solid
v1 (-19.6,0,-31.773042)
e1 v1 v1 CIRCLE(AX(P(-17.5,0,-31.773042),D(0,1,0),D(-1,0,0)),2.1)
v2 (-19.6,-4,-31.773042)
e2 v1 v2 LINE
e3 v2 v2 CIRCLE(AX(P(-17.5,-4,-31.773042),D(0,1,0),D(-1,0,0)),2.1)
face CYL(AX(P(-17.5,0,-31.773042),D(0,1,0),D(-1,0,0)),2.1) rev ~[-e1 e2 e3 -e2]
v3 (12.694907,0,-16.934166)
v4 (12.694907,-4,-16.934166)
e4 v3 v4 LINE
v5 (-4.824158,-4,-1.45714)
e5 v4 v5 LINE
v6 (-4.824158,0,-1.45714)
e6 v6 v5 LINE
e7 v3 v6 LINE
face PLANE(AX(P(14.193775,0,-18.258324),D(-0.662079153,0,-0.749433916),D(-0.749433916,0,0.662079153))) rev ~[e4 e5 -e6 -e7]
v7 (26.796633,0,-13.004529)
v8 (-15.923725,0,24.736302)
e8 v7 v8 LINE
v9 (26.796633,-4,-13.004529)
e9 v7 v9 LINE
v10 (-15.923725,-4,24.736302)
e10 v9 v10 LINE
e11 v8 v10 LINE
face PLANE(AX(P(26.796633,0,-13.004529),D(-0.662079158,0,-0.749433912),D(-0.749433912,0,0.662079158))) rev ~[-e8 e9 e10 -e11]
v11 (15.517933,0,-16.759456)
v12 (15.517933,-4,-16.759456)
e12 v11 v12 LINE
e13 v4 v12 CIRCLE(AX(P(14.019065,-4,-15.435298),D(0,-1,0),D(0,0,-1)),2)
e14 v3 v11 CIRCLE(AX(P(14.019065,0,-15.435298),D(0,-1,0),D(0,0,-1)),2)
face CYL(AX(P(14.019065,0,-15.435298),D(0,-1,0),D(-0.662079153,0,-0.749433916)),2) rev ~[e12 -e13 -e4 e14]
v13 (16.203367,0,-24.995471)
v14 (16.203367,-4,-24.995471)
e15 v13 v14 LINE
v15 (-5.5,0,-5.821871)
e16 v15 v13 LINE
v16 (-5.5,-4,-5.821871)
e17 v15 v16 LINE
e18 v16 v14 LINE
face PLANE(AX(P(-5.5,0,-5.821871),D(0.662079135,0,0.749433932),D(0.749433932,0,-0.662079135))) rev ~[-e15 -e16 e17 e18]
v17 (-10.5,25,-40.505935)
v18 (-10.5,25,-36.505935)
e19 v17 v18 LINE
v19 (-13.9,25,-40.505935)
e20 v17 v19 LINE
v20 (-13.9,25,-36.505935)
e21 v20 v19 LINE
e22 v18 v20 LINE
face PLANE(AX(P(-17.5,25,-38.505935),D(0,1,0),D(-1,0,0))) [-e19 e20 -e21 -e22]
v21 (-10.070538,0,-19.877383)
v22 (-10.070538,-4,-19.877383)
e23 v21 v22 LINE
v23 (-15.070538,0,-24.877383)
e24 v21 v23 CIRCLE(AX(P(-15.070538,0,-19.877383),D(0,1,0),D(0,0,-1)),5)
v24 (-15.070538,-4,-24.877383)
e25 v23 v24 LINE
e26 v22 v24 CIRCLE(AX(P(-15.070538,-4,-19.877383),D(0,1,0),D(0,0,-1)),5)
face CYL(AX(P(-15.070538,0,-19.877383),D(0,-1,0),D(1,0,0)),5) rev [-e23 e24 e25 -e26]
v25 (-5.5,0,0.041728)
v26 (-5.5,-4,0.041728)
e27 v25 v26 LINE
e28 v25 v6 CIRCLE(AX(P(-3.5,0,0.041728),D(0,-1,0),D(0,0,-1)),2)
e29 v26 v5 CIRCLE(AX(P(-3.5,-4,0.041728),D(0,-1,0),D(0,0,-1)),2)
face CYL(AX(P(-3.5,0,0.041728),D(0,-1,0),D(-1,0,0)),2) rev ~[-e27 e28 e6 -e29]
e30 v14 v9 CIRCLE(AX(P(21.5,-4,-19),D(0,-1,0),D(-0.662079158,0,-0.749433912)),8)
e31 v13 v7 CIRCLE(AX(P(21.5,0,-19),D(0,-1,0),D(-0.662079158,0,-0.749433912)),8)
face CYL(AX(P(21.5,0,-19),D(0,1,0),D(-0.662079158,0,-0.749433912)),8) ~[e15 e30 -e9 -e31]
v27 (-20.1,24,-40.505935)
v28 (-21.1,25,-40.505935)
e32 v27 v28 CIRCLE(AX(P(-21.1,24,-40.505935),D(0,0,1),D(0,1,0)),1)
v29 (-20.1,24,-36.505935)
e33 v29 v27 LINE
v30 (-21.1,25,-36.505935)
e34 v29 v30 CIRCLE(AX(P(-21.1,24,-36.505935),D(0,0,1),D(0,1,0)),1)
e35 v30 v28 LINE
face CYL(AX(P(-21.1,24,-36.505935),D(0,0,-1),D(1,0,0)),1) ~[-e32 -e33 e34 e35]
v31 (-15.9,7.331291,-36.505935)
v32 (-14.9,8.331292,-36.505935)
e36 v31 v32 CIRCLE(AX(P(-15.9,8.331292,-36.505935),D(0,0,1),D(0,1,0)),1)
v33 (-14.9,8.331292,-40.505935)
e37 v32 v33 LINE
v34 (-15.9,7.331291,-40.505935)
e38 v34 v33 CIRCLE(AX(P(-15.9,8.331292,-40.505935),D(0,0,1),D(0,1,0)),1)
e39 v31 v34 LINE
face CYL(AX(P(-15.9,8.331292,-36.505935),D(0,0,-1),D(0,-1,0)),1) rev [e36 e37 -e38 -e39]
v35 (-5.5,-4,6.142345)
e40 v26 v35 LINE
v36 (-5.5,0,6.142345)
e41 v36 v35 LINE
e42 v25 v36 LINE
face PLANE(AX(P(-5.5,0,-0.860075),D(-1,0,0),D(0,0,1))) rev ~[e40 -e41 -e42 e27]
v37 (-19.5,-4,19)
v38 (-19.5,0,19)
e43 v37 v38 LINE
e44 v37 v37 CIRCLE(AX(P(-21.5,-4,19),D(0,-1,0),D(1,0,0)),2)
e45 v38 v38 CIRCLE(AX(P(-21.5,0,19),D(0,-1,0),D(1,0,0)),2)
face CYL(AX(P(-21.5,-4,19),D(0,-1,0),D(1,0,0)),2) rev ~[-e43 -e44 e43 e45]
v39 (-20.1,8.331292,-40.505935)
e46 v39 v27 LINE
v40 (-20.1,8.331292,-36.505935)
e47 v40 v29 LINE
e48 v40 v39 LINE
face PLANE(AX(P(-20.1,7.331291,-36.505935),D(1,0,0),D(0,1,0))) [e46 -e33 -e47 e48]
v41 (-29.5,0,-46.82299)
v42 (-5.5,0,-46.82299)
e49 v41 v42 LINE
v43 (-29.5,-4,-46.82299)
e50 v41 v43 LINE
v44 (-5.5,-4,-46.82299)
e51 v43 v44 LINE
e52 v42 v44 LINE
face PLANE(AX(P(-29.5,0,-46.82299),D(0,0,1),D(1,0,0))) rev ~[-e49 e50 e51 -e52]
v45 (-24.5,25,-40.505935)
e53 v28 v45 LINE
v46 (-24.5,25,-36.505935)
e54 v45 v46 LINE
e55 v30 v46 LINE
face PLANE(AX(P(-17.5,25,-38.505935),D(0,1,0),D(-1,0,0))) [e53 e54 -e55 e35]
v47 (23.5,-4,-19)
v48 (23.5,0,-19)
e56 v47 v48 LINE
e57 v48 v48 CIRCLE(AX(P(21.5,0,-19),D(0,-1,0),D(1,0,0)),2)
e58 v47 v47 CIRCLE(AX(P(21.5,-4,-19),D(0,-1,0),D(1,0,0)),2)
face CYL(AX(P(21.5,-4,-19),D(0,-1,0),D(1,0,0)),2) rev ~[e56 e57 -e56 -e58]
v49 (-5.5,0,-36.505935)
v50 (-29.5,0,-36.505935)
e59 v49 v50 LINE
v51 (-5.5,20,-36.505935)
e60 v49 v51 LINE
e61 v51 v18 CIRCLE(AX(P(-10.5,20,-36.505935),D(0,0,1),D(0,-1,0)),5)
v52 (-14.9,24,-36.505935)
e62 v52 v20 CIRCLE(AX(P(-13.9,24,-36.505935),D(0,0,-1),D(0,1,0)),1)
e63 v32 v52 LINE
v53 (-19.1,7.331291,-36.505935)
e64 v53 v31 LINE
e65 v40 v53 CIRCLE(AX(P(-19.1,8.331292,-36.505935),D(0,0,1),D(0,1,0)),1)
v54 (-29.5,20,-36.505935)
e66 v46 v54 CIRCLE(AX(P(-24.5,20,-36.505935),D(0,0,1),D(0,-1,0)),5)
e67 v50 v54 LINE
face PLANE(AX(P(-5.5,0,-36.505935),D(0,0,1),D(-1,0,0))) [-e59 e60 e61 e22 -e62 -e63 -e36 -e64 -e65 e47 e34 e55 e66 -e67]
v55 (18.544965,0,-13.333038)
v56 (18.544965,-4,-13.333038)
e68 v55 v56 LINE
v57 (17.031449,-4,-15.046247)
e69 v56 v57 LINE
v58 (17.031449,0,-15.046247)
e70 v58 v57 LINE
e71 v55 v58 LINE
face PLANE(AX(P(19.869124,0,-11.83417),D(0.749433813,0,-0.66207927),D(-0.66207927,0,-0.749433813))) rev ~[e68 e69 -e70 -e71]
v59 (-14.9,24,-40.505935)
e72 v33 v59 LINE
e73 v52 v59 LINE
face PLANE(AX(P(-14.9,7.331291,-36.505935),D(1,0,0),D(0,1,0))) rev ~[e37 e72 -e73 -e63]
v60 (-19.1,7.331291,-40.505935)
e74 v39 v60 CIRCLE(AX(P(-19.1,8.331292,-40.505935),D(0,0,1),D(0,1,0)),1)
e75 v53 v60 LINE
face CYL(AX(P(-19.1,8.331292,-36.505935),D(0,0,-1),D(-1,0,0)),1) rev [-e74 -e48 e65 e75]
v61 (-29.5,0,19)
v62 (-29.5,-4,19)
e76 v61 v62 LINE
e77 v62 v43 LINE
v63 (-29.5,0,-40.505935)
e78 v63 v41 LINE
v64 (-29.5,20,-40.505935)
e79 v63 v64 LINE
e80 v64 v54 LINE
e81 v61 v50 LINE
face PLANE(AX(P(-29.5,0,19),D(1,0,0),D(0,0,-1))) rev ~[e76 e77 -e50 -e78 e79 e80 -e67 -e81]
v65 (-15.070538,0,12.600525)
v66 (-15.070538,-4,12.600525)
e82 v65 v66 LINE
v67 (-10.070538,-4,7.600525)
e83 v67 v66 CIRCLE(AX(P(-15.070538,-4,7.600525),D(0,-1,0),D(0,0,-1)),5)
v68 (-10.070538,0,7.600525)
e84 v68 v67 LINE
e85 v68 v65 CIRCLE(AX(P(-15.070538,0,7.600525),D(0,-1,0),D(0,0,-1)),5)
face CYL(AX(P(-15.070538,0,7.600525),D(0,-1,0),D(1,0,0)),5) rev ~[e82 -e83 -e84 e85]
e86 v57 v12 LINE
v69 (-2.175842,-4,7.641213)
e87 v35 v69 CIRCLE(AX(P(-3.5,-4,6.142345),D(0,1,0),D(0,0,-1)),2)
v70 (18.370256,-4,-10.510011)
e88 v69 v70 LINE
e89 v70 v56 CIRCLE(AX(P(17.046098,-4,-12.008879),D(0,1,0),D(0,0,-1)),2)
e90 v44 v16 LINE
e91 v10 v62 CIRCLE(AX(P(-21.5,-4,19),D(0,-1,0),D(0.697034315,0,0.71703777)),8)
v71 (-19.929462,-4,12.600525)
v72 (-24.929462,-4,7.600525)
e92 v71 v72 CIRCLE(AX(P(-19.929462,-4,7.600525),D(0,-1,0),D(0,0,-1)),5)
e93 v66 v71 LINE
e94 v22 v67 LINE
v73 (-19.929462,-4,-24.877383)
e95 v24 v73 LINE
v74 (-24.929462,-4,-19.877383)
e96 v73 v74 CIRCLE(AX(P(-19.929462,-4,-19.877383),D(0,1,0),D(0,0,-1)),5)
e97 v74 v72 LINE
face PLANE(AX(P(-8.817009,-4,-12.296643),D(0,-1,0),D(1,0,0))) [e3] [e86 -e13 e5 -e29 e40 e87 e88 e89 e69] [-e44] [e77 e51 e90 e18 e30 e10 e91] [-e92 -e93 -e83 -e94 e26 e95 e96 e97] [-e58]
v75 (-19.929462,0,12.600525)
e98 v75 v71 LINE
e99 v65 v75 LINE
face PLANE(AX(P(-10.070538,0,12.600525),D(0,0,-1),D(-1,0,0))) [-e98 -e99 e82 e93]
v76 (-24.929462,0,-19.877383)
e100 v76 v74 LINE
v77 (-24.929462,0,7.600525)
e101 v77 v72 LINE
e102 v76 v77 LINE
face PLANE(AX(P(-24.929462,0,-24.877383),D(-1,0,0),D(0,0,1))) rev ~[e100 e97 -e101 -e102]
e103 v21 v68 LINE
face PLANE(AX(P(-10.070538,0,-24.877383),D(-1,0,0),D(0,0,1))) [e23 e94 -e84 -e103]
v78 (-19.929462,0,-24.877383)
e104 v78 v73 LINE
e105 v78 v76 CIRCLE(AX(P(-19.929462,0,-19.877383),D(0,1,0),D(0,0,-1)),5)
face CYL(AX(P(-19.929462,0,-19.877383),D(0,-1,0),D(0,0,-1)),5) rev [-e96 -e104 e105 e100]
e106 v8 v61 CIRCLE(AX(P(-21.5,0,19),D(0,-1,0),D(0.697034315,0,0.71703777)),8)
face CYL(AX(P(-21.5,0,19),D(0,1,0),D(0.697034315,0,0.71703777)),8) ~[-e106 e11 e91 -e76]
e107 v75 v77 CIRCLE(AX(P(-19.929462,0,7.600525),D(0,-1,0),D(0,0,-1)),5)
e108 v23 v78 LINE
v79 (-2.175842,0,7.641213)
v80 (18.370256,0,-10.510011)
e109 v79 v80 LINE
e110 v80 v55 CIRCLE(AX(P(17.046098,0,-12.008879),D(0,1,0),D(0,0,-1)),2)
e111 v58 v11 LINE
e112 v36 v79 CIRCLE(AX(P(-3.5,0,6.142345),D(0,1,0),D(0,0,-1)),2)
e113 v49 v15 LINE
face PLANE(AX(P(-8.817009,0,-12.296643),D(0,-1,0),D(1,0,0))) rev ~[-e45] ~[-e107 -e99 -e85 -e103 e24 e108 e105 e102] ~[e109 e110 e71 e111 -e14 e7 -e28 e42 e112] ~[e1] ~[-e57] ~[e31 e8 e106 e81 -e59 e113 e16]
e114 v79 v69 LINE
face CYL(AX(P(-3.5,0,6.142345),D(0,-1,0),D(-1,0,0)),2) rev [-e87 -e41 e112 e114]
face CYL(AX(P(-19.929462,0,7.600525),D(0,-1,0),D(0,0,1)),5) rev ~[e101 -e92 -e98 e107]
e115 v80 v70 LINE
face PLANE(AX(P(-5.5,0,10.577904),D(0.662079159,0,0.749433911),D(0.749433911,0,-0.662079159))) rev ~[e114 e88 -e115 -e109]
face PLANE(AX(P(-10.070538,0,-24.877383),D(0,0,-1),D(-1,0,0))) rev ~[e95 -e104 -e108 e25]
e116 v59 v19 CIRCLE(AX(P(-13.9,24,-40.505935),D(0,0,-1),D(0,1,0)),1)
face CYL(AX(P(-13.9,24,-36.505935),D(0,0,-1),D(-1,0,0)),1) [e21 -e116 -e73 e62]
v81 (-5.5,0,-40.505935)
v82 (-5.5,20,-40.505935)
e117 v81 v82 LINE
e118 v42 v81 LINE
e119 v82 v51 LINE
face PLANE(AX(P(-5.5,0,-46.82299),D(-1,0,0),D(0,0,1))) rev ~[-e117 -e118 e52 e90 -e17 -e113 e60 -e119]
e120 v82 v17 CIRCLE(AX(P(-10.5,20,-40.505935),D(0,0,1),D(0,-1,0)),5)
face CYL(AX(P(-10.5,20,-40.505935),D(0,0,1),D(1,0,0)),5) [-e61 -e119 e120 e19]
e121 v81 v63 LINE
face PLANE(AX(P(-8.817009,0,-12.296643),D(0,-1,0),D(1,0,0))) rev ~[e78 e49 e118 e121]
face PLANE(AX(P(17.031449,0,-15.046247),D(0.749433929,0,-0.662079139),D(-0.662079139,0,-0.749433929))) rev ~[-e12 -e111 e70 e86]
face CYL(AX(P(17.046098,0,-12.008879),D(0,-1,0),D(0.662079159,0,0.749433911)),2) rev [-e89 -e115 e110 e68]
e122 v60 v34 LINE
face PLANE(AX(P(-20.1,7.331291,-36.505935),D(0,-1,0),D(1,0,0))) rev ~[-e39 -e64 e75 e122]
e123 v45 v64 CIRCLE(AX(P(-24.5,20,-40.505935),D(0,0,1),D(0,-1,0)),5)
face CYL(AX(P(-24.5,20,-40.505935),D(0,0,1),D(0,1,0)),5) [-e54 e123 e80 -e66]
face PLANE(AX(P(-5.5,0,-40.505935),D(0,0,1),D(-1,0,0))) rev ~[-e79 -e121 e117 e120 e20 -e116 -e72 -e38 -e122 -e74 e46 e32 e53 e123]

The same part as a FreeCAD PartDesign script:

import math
import FreeCAD as App
import Part
import Sketcher


def edges_at(feature, points):
    """Names of the edges that pass closest to the given points."""
    edges = feature.Shape.Edges
    near = lambda p: min(range(len(edges)), key=lambda i: edges[i].distToShape(Part.Vertex(*p))[0])
    return sorted({f"Edge{near(p) + 1}" for p in points})

doc = App.newDocument("Part")
body = doc.addObject("PartDesign::Body", "Body")

sketch1 = body.newObject("Sketcher::SketchObject", "Sketch")
sketch1.AttachmentSupport = (doc.getObject("XZ_Plane"), [""])
sketch1.MapMode = "FlatFace"
sketch1.addGeometry([
    Part.LineSegment(App.Vector(27, -13, 0), App.Vector(-16, 25, 0)),
    Part.ArcOfCircle(Part.Circle(App.Vector(-21, 19, 0), App.Vector(0, 0, 1), 8), math.radians(46), math.radians(180)),
    Part.LineSegment(App.Vector(-30, 19, 0), App.Vector(-30, -47, 0)),
    Part.LineSegment(App.Vector(-30, -47, 0), App.Vector(-6, -47, 0)),
    Part.LineSegment(App.Vector(-6, -47, 0), App.Vector(-6, -6, 0)),
    Part.LineSegment(App.Vector(-6, -6, 0), App.Vector(16, -25, 0)),
    Part.ArcOfCircle(Part.Circle(App.Vector(22, -19, 0), App.Vector(0, 0, 1), 8), math.radians(-131), math.radians(49)),
], False)
sketch1.addConstraint([
    Sketcher.Constraint("Coincident", 0, 2, 1, 1),
    Sketcher.Constraint("Tangent", 1, 2, 2, 1),
    Sketcher.Constraint("Coincident", 2, 2, 3, 1),
    Sketcher.Constraint("Coincident", 3, 2, 4, 1),
    Sketcher.Constraint("Coincident", 4, 2, 5, 1),
    Sketcher.Constraint("Tangent", 5, 2, 6, 1),
    Sketcher.Constraint("Tangent", 6, 2, 0, 1),
    Sketcher.Constraint("Vertical", 2),
    Sketcher.Constraint("Horizontal", 3),
    Sketcher.Constraint("Vertical", 4),
    Sketcher.Constraint("Equal", 1, 6),
    Sketcher.Constraint("Symmetric", 1, 3, 6, 3, -1, 1),
    Sketcher.Constraint("Parallel", 0, 5),
    Sketcher.Constraint("Radius", 1, 8.0),
    Sketcher.Constraint("DistanceX", 3, 1, 3, 2, 24.0),
    Sketcher.Constraint("DistanceY", -1, 1, 1, 3, 19.0),
    Sketcher.Constraint("DistanceX", 1, 3, 6, 3, 43.0),
    Sketcher.Constraint("DistanceY", 2, 2, 2, 1, 65.82299),
    Sketcher.Constraint("DistanceY", 4, 1, 4, 2, 41.001119),
])
pad1 = body.newObject("PartDesign::Pad", "Pad")
pad1.Profile = sketch1
pad1.Length = 4

sketch2 = body.newObject("Sketcher::SketchObject", "Sketch001")
sketch2.AttachmentSupport = (doc.getObject("XZ_Plane"), [""])
sketch2.MapMode = "FlatFace"
sketch2.AttachmentOffset = App.Placement(App.Vector(0, 0, 4), App.Rotation())
sketch2.addGeometry([
    Part.Circle(App.Vector(-21.5, 19, 0), App.Vector(0, 0, 1), 2),
    Part.Circle(App.Vector(21.5, -19, 0), App.Vector(0, 0, 1), 2),
], False)
sketch2.addConstraint([
    Sketcher.Constraint("Equal", 0, 1),
    Sketcher.Constraint("Symmetric", 0, 3, 1, 3, -1, 1),
    Sketcher.Constraint("Diameter", 0, 4.0),
    Sketcher.Constraint("DistanceY", -1, 1, 0, 3, 19.0),
    Sketcher.Constraint("DistanceX", 0, 3, 1, 3, 43.0),
])
pocket1 = body.newObject("PartDesign::Pocket", "Pocket")
pocket1.Profile = sketch2
pocket1.Length = 25

sketch3 = body.newObject("Sketcher::SketchObject", "Sketch002")
sketch3.AttachmentSupport = (doc.getObject("XZ_Plane"), [""])
sketch3.MapMode = "FlatFace"
sketch3.addGeometry([
    Part.LineSegment(App.Vector(-5.5, -36.5, 0), App.Vector(-5.5, -40.5, 0)),
    Part.LineSegment(App.Vector(-5.5, -40.5, 0), App.Vector(-29.5, -40.5, 0)),
    Part.LineSegment(App.Vector(-29.5, -40.5, 0), App.Vector(-29.5, -36.5, 0)),
    Part.LineSegment(App.Vector(-29.5, -36.5, 0), App.Vector(-5.5, -36.5, 0)),
], False)
sketch3.addConstraint([
    Sketcher.Constraint("Coincident", 0, 2, 1, 1),
    Sketcher.Constraint("Coincident", 1, 2, 2, 1),
    Sketcher.Constraint("Coincident", 2, 2, 3, 1),
    Sketcher.Constraint("Coincident", 3, 2, 0, 1),
    Sketcher.Constraint("Vertical", 0),
    Sketcher.Constraint("Horizontal", 1),
    Sketcher.Constraint("Vertical", 2),
    Sketcher.Constraint("Horizontal", 3),
    Sketcher.Constraint("DistanceX", 1, 2, 1, 1, 24.0),
    Sketcher.Constraint("DistanceY", 0, 2, 0, 1, 4.0),
    Sketcher.Constraint("DistanceX", 0, 2, -1, 1, 5.5),
    Sketcher.Constraint("DistanceY", 0, 2, -1, 1, 40.505935),
])
pad2 = body.newObject("PartDesign::Pad", "Pad001")
pad2.Profile = sketch3
pad2.Length = 25
pad2.Reversed = True

sketch4 = body.newObject("Sketcher::SketchObject", "Sketch003")
sketch4.AttachmentSupport = (doc.getObject("XY_Plane"), [""])
sketch4.MapMode = "FlatFace"
sketch4.AttachmentOffset = App.Placement(App.Vector(0, 0, -36.505935), App.Rotation())
sketch4.addGeometry([
    Part.LineSegment(App.Vector(-20, 25, 0), App.Vector(-20, 7, 0)),
    Part.LineSegment(App.Vector(-20, 7, 0), App.Vector(-15, 7, 0)),
    Part.LineSegment(App.Vector(-15, 7, 0), App.Vector(-15, 25, 0)),
    Part.LineSegment(App.Vector(-15, 25, 0), App.Vector(-20, 25, 0)),
], False)
sketch4.addConstraint([
    Sketcher.Constraint("Coincident", 0, 2, 1, 1),
    Sketcher.Constraint("Coincident", 1, 2, 2, 1),
    Sketcher.Constraint("Coincident", 2, 2, 3, 1),
    Sketcher.Constraint("Coincident", 3, 2, 0, 1),
    Sketcher.Constraint("Vertical", 0),
    Sketcher.Constraint("Horizontal", 1),
    Sketcher.Constraint("Vertical", 2),
    Sketcher.Constraint("Horizontal", 3),
    Sketcher.Constraint("DistanceX", 1, 1, 1, 2, 5.2),
    Sketcher.Constraint("DistanceY", -1, 1, 2, 2, 25.0),
    Sketcher.Constraint("DistanceX", 0, 2, -1, 1, 20.1),
    Sketcher.Constraint("DistanceY", 0, 2, 0, 1, 17.668709),
])
pocket2 = body.newObject("PartDesign::Pocket", "Pocket001")
pocket2.Profile = sketch4
pocket2.Length = 25
doc.recompute()

fillet = body.newObject("PartDesign::Fillet", "Fillet")
fillet.Base = (pocket2, edges_at(pocket2, [(-20.1, 7.331, -38.506)]))
fillet.Radius = 1
doc.recompute()

fillet2 = body.newObject("PartDesign::Fillet", "Fillet001")
fillet2.Base = (fillet, edges_at(fillet, [(-14.9, 7.331, -38.506), (-14.9, 25, -38.506), (-20.1, 25, -38.506)]))
fillet2.Radius = 1
doc.recompute()

fillet3 = body.newObject("PartDesign::Fillet", "Fillet002")
fillet3.Base = (fillet2, edges_at(fillet2, [(-5.5, 25, -38.506), (-29.5, 25, -38.506)]))
fillet3.Radius = 5

sketch5 = body.newObject("Sketcher::SketchObject", "Sketch004")
sketch5.AttachmentSupport = (doc.getObject("XZ_Plane"), [""])
sketch5.MapMode = "FlatFace"
sketch5.addGeometry([
    Part.LineSegment(App.Vector(-10.1, 12.6, 0), App.Vector(-10.1, -24.9, 0)),
    Part.LineSegment(App.Vector(-10.1, -24.9, 0), App.Vector(-24.9, -24.9, 0)),
    Part.LineSegment(App.Vector(-24.9, -24.9, 0), App.Vector(-24.9, 12.6, 0)),
    Part.LineSegment(App.Vector(-24.9, 12.6, 0), App.Vector(-10.1, 12.6, 0)),
    Part.LineSegment(App.Vector(-5.5, 10.6, 0), App.Vector(19.9, -11.8, 0)),
    Part.LineSegment(App.Vector(19.9, -11.8, 0), App.Vector(17, -15, 0)),
    Part.LineSegment(App.Vector(17, -15, 0), App.Vector(14.2, -18.3, 0)),
    Part.LineSegment(App.Vector(14.2, -18.3, 0), App.Vector(-5.5, -0.9, 0)),
    Part.LineSegment(App.Vector(-5.5, -0.9, 0), App.Vector(-5.5, 10.6, 0)),
], False)
sketch5.addConstraint([
    Sketcher.Constraint("Coincident", 0, 2, 1, 1),
    Sketcher.Constraint("Coincident", 1, 2, 2, 1),
    Sketcher.Constraint("Coincident", 2, 2, 3, 1),
    Sketcher.Constraint("Coincident", 3, 2, 0, 1),
    Sketcher.Constraint("Coincident", 4, 2, 5, 1),
    Sketcher.Constraint("Coincident", 5, 2, 6, 1),
    Sketcher.Constraint("Coincident", 6, 2, 7, 1),
    Sketcher.Constraint("Coincident", 7, 2, 8, 1),
    Sketcher.Constraint("Coincident", 8, 2, 4, 1),
    Sketcher.Constraint("Vertical", 0),
    Sketcher.Constraint("Horizontal", 1),
    Sketcher.Constraint("Vertical", 2),
    Sketcher.Constraint("Horizontal", 3),
    Sketcher.Constraint("Vertical", 8),
    Sketcher.Constraint("Perpendicular", 4, 5),
    Sketcher.Constraint("Parallel", 5, 6),
    Sketcher.Constraint("Perpendicular", 6, 7),
    Sketcher.Constraint("Equal", 5, 6),
    Sketcher.Constraint("DistanceX", 7, 2, -1, 1, 5.5),
    Sketcher.Constraint("Distance", 7, 26.278201),
    Sketcher.Constraint("DistanceY", 8, 1, 8, 2, 11.437979),
    Sketcher.Constraint("DistanceY", 7, 2, 3, 2, 13.4606),
    Sketcher.Constraint("Distance", 4, 33.851049),
    Sketcher.Constraint("DistanceX", 1, 2, 1, 1, 14.858924),
    Sketcher.Constraint("DistanceY", 0, 2, 0, 1, 37.477908),
    Sketcher.Constraint("DistanceX", 0, 2, -1, 1, 10.070538),
    Sketcher.Constraint("DistanceY", 4, 2, -1, 1, 11.83417),
])
pocket3 = body.newObject("PartDesign::Pocket", "Pocket002")
pocket3.Profile = sketch5
pocket3.Type = "ThroughAll"
pocket3.Reversed = True

sketch6 = body.newObject("Sketcher::SketchObject", "Sketch005")
sketch6.AttachmentSupport = (doc.getObject("XZ_Plane"), [""])
sketch6.MapMode = "FlatFace"
sketch6.addGeometry([
    Part.LineSegment(App.Vector(-10.1, 12.6, 0), App.Vector(-10.1, -24.9, 0)),
    Part.LineSegment(App.Vector(-10.1, -24.9, 0), App.Vector(-24.9, -24.9, 0)),
    Part.LineSegment(App.Vector(-24.9, -24.9, 0), App.Vector(-24.9, 12.6, 0)),
    Part.LineSegment(App.Vector(-24.9, 12.6, 0), App.Vector(-10.1, 12.6, 0)),
    Part.LineSegment(App.Vector(-5.5, 10.6, 0), App.Vector(19.9, -11.8, 0)),
    Part.LineSegment(App.Vector(19.9, -11.8, 0), App.Vector(17, -15, 0)),
    Part.LineSegment(App.Vector(17, -15, 0), App.Vector(14.2, -18.3, 0)),
    Part.LineSegment(App.Vector(14.2, -18.3, 0), App.Vector(-5.5, -0.9, 0)),
    Part.LineSegment(App.Vector(-5.5, -0.9, 0), App.Vector(-5.5, 10.6, 0)),
], False)
sketch6.addConstraint([
    Sketcher.Constraint("Coincident", 0, 2, 1, 1),
    Sketcher.Constraint("Coincident", 1, 2, 2, 1),
    Sketcher.Constraint("Coincident", 2, 2, 3, 1),
    Sketcher.Constraint("Coincident", 3, 2, 0, 1),
    Sketcher.Constraint("Coincident", 4, 2, 5, 1),
    Sketcher.Constraint("Coincident", 5, 2, 6, 1),
    Sketcher.Constraint("Coincident", 6, 2, 7, 1),
    Sketcher.Constraint("Coincident", 7, 2, 8, 1),
    Sketcher.Constraint("Coincident", 8, 2, 4, 1),
    Sketcher.Constraint("Vertical", 0),
    Sketcher.Constraint("Horizontal", 1),
    Sketcher.Constraint("Vertical", 2),
    Sketcher.Constraint("Horizontal", 3),
    Sketcher.Constraint("Vertical", 8),
    Sketcher.Constraint("Perpendicular", 4, 5),
    Sketcher.Constraint("Parallel", 5, 6),
    Sketcher.Constraint("Perpendicular", 6, 7),
    Sketcher.Constraint("Equal", 5, 6),
    Sketcher.Constraint("DistanceX", 7, 2, -1, 1, 5.5),
    Sketcher.Constraint("Distance", 7, 26.278201),
    Sketcher.Constraint("DistanceY", 8, 1, 8, 2, 11.437979),
    Sketcher.Constraint("DistanceY", 7, 2, 3, 2, 13.4606),
    Sketcher.Constraint("Distance", 4, 33.851049),
    Sketcher.Constraint("DistanceX", 1, 2, 1, 1, 14.858924),
    Sketcher.Constraint("DistanceY", 0, 2, 0, 1, 37.477908),
    Sketcher.Constraint("DistanceX", 0, 2, -1, 1, 10.070538),
    Sketcher.Constraint("DistanceY", 4, 2, -1, 1, 11.83417),
])
pocket4 = body.newObject("PartDesign::Pocket", "Pocket003")
pocket4.Profile = sketch6
pocket4.Length = 25
pocket4.Reversed = True

sketch7 = body.newObject("Sketcher::SketchObject", "Sketch006")
sketch7.AttachmentSupport = (doc.getObject("XZ_Plane"), [""])
sketch7.MapMode = "FlatFace"
sketch7.addGeometry(Part.Circle(App.Vector(-17.5, -31.8, 0), App.Vector(0, 0, 1), 2.1), False)
sketch7.addConstraint([
    Sketcher.Constraint("Diameter", 0, 4.2),
    Sketcher.Constraint("DistanceX", 0, 3, -1, 1, 17.5),
    Sketcher.Constraint("DistanceY", 0, 3, -1, 1, 31.773042),
])
pocket5 = body.newObject("PartDesign::Pocket", "Pocket004")
pocket5.Profile = sketch7
pocket5.Type = "ThroughAll"
pocket5.Reversed = True
doc.recompute()

fillet4 = body.newObject("PartDesign::Fillet", "Fillet003")
fillet4.Base = (pocket5, edges_at(pocket5, [
    (-24.929, -2, 12.601),
    (-10.071, -2, 12.601),
    (-10.071, -2, -24.877),
    (-24.929, -2, -24.877),
]))
fillet4.Radius = 5
doc.recompute()

fillet5 = body.newObject("PartDesign::Fillet", "Fillet004")
fillet5.Base = (fillet4, edges_at(fillet4, [
    (14.194, -2, -18.258),
    (19.869, -2, -11.834),
    (-5.5, -2, -0.86),
    (-5.5, -2, 10.578),
]))
fillet5.Radius = 2

doc.recompute()
